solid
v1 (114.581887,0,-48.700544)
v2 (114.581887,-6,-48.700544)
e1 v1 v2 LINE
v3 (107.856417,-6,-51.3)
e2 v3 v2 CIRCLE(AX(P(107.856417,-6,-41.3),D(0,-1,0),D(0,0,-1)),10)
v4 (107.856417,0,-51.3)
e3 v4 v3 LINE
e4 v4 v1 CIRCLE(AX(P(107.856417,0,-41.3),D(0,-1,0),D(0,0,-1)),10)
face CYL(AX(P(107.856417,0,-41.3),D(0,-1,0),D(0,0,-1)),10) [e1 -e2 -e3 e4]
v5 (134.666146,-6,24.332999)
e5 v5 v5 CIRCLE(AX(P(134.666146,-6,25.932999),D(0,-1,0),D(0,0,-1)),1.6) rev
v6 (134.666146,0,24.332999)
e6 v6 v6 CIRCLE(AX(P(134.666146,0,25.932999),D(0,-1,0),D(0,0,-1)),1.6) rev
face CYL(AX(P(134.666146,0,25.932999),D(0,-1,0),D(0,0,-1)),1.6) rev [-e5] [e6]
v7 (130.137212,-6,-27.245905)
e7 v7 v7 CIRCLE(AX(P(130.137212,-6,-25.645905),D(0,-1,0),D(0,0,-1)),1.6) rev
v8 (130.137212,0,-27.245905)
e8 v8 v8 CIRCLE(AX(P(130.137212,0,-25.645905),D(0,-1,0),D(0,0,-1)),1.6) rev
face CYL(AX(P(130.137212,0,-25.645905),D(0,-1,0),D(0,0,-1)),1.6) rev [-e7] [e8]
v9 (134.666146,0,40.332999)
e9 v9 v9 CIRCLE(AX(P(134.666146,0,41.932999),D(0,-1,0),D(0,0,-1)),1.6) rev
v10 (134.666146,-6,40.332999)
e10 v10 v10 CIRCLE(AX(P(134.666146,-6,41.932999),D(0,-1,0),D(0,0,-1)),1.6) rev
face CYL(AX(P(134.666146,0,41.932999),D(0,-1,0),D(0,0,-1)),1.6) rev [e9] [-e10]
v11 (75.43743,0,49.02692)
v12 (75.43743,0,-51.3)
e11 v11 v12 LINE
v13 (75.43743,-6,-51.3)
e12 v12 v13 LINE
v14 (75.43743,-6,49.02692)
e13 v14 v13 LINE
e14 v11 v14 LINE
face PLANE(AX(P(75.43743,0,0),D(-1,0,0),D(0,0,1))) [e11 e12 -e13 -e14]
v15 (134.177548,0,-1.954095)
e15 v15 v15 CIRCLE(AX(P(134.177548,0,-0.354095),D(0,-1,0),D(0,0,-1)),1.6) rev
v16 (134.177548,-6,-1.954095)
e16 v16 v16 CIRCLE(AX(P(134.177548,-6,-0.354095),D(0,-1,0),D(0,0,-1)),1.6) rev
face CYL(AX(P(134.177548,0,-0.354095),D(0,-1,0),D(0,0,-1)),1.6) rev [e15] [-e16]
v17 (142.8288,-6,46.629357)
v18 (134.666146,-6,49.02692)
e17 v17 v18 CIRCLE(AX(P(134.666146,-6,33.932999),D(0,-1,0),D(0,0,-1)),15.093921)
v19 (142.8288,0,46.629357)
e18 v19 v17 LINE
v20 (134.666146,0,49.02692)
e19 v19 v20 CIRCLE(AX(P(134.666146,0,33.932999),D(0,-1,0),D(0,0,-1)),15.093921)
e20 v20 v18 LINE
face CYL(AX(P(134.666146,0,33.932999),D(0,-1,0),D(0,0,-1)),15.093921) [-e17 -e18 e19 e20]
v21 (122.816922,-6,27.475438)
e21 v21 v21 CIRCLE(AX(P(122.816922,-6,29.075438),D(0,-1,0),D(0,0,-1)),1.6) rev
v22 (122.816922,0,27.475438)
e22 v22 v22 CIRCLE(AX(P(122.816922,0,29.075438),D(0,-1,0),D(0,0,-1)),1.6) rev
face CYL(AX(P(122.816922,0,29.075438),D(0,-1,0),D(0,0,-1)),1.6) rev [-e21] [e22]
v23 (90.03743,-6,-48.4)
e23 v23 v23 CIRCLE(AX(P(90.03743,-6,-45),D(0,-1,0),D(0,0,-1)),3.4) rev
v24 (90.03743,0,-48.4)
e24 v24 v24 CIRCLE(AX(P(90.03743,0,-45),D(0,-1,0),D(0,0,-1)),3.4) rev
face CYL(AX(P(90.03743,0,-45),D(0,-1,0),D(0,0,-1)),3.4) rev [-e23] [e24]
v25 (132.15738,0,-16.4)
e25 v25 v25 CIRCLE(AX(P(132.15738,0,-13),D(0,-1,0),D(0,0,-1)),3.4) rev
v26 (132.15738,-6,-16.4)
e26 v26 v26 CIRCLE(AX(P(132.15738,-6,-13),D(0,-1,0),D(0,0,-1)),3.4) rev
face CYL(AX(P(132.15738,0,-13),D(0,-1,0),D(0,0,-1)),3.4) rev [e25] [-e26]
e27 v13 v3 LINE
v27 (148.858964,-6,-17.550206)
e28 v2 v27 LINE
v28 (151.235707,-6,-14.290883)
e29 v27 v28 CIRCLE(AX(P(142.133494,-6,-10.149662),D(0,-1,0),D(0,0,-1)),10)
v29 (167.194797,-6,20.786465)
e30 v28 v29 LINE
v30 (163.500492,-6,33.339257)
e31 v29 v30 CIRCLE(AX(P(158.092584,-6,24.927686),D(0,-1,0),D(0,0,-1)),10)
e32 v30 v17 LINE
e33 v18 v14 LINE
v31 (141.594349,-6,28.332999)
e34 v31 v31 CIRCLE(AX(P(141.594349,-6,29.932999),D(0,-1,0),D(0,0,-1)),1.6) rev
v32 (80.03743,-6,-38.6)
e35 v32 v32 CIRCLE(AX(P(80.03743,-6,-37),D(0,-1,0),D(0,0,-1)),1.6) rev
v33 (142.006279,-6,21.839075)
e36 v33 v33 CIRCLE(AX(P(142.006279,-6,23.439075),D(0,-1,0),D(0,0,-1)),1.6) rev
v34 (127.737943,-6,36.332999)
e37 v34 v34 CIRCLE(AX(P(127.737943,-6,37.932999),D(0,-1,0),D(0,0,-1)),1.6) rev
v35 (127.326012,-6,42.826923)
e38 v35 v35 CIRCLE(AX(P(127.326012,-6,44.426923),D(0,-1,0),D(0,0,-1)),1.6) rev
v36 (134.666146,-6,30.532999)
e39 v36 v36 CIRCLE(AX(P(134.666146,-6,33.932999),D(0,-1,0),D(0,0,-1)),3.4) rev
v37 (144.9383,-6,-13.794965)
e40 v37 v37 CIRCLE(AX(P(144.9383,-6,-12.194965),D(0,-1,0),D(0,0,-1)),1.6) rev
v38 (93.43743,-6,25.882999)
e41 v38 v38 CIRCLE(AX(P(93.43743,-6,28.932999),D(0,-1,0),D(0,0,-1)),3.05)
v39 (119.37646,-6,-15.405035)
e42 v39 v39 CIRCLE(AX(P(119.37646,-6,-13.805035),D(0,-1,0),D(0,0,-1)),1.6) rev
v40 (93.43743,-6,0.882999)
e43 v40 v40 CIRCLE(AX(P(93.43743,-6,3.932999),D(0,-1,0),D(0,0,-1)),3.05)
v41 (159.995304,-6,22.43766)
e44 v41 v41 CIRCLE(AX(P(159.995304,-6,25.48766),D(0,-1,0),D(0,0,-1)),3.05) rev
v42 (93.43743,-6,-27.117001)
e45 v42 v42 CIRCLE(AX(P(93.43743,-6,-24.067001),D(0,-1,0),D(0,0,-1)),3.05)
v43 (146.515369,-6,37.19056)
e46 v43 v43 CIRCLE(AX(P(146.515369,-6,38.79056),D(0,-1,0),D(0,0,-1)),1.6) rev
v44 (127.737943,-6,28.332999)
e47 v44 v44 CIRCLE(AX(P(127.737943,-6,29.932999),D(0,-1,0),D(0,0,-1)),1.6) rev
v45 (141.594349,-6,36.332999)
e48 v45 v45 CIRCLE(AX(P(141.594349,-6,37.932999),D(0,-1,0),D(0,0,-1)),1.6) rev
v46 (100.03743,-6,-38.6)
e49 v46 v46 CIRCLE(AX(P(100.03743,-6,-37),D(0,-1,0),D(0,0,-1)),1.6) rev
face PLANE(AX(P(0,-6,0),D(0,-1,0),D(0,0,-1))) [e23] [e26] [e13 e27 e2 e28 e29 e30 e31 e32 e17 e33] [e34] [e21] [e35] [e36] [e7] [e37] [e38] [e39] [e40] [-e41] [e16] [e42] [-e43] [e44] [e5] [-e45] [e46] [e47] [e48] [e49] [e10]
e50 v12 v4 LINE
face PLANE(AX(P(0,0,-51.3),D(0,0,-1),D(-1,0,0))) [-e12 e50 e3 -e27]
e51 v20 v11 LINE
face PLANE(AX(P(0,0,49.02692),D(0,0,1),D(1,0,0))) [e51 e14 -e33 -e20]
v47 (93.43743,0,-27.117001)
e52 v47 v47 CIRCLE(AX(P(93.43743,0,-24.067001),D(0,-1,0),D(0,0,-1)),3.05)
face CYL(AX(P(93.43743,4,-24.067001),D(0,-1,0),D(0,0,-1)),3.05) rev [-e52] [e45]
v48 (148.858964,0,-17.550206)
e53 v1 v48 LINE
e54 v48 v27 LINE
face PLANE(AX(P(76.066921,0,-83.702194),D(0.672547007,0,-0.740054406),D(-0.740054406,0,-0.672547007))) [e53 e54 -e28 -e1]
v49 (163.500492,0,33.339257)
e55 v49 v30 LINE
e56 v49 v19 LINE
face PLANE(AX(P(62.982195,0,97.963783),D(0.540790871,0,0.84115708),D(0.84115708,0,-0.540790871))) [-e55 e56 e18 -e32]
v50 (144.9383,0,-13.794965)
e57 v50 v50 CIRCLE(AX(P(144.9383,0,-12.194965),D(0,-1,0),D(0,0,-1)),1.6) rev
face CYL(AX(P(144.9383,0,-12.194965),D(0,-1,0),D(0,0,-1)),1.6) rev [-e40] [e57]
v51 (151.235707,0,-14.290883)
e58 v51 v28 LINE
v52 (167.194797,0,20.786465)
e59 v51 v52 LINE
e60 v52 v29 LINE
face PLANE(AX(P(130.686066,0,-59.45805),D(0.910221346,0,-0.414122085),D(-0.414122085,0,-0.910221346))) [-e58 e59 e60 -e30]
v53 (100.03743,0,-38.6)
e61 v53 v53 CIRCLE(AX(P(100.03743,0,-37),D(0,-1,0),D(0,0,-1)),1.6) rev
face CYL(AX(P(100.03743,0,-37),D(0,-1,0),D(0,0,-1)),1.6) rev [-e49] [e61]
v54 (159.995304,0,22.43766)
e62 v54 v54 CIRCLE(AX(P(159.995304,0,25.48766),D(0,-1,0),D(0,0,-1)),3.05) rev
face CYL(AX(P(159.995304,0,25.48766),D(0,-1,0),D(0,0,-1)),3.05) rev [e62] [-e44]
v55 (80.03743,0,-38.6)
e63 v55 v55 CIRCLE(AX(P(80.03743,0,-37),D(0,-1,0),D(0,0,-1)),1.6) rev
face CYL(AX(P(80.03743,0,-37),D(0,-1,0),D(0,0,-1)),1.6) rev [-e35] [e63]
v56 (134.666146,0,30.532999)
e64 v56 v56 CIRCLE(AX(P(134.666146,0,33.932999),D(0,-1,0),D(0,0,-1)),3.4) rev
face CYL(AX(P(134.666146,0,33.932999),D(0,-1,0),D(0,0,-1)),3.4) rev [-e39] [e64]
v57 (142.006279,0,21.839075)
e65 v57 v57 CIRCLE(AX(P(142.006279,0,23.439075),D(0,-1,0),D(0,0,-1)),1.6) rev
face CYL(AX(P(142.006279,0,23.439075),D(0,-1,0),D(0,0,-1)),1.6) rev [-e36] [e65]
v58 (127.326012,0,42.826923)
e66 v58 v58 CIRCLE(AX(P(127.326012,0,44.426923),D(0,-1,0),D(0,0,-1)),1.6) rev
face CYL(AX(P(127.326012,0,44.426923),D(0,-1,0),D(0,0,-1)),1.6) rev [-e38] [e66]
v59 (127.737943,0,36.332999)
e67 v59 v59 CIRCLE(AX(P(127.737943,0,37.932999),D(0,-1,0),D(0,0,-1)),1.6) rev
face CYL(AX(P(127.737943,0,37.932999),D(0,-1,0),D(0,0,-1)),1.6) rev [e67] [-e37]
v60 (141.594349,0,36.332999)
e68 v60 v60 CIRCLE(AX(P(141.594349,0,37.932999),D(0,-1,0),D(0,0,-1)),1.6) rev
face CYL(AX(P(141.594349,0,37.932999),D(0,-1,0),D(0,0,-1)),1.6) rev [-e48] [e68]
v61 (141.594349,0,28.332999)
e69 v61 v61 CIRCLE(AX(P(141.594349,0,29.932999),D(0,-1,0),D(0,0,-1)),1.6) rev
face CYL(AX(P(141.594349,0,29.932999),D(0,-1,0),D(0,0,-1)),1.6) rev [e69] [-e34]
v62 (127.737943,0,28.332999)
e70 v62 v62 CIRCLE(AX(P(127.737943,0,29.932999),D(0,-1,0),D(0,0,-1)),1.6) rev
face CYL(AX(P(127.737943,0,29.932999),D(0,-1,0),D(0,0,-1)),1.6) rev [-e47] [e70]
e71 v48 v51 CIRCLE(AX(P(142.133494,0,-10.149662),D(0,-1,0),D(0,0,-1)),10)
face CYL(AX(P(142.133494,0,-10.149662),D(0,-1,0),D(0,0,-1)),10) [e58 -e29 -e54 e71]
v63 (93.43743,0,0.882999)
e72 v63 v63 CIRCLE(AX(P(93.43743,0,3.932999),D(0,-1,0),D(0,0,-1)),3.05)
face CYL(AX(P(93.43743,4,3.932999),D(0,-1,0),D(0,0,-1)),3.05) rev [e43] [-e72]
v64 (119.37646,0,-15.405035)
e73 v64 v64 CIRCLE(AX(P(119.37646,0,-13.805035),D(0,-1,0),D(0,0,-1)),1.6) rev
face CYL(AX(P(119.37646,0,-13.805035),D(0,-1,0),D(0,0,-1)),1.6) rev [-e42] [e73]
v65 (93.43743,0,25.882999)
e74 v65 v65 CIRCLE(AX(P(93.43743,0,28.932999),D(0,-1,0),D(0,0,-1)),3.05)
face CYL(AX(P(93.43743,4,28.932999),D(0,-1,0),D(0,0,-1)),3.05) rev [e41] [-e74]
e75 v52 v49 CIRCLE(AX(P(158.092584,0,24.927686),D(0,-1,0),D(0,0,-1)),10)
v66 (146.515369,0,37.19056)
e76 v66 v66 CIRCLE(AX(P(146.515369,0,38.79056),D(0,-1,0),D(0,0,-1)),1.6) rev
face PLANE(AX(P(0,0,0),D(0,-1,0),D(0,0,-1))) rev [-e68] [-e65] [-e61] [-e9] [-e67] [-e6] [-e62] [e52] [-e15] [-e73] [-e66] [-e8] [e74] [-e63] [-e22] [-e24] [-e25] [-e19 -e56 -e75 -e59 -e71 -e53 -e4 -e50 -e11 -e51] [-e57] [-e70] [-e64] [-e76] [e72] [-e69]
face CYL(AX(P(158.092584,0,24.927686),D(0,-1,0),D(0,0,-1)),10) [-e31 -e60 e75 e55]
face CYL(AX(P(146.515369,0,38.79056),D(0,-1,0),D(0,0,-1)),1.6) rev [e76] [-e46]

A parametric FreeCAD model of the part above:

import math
import FreeCAD as App
import Part
import Sketcher
from FreeCAD import Vector

doc = App.newDocument("Part")
body = doc.addObject("PartDesign::Body", "Body")

sketch1 = doc.addObject("Sketcher::SketchObject", "Sketch")
body.addObject(sketch1)
sketch1.AttachmentSupport = (doc.XZ_Plane, [""])
sketch1.MapMode = "FlatFace"
sketch1.AttachmentOffset = App.Placement(Vector(0, 0, 6), App.Rotation())
sketch1.addGeometry(Part.ArcOfCircle(Part.Circle(Vector(142.1, -10.1, 0), Vector(0, 0, 1), 10), math.radians(-48), math.radians(-24)), False)
sketch1.addGeometry(Part.LineSegment(Vector(151.2, -14.3, 0), Vector(167.2, 20.8, 0)), False)
sketch1.addGeometry(Part.ArcOfCircle(Part.Circle(Vector(158.1, 24.9, 0), Vector(0, 0, 1), 10), math.radians(-24), math.radians(57)), False)
sketch1.addGeometry(Part.LineSegment(Vector(163.5, 33.3, 0), Vector(142.8, 46.6, 0)), False)
sketch1.addGeometry(Part.ArcOfCircle(Part.Circle(Vector(134.7, 33.9, 0), Vector(0, 0, 1), 15.1), math.radians(57), math.radians(90)), False)
sketch1.addGeometry(Part.LineSegment(Vector(134.7, 49, 0), Vector(75.4, 49, 0)), False)
sketch1.addGeometry(Part.LineSegment(Vector(75.4, 49, 0), Vector(75.4, -51.3, 0)), False)
sketch1.addGeometry(Part.LineSegment(Vector(75.4, -51.3, 0), Vector(107.9, -51.3, 0)), False)
sketch1.addGeometry(Part.ArcOfCircle(Part.Circle(Vector(107.9, -41.3, 0), Vector(0, 0, 1), 10), math.radians(-90), math.radians(-48)), False)
sketch1.addGeometry(Part.LineSegment(Vector(114.6, -48.7, 0), Vector(148.9, -17.6, 0)), False)
sketch1.addGeometry(Part.Circle(Vector(80, -37, 0), Vector(0, 0, 1), 1.6), False)
sketch1.addGeometry(Part.Circle(Vector(90, -45, 0), Vector(0, 0, 1), 3.4), False)
sketch1.addGeometry(Part.Circle(Vector(100, -37, 0), Vector(0, 0, 1), 1.6), False)
sketch1.addGeometry(Part.Circle(Vector(119.4, -13.8, 0), Vector(0, 0, 1), 1.6), False)
sketch1.addGeometry(Part.Circle(Vector(130.1, -25.6, 0), Vector(0, 0, 1), 1.6), False)
sketch1.addGeometry(Part.Circle(Vector(132.2, -13, 0), Vector(0, 0, 1), 3.4), False)
sketch1.addGeometry(Part.Circle(Vector(144.9, -12.2, 0), Vector(0, 0, 1), 1.6), False)
sketch1.addGeometry(Part.Circle(Vector(134.2, -0.4, 0), Vector(0, 0, 1), 1.6), False)
sketch1.addGeometry(Part.Circle(Vector(122.8, 29.1, 0), Vector(0, 0, 1), 1.6), False)
sketch1.addGeometry(Part.Circle(Vector(127.7, 29.9, 0), Vector(0, 0, 1), 1.6), False)
sketch1.addGeometry(Part.Circle(Vector(134.7, 25.9, 0), Vector(0, 0, 1), 1.6), False)
sketch1.addGeometry(Part.Circle(Vector(134.7, 33.9, 0), Vector(0, 0, 1), 3.4), False)
sketch1.addGeometry(Part.Circle(Vector(141.6, 29.9, 0), Vector(0, 0, 1), 1.6), False)
sketch1.addGeometry(Part.Circle(Vector(127.7, 37.9, 0), Vector(0, 0, 1), 1.6), False)
sketch1.addGeometry(Part.Circle(Vector(127.3, 44.4, 0), Vector(0, 0, 1), 1.6), False)
sketch1.addGeometry(Part.Circle(Vector(141.6, 37.9, 0), Vector(0, 0, 1), 1.6), False)
sketch1.addGeometry(Part.Circle(Vector(134.7, 41.9, 0), Vector(0, 0, 1), 1.6), False)
sketch1.addGeometry(Part.Circle(Vector(142, 23.4, 0), Vector(0, 0, 1), 1.6), False)
sketch1.addGeometry(Part.Circle(Vector(160, 25.5, 0), Vector(0, 0, 1), 3), False)
sketch1.addGeometry(Part.Circle(Vector(146.5, 38.8, 0), Vector(0, 0, 1), 1.6), False)
sketch1.addConstraint(Sketcher.Constraint("Tangent", 0, 2, 1, 1))
sketch1.addConstraint(Sketcher.Constraint("Tangent", 1, 2, 2, 1))
sketch1.addConstraint(Sketcher.Constraint("Tangent", 2, 2, 3, 1))
sketch1.addConstraint(Sketcher.Constraint("Tangent", 3, 2, 4, 1))
sketch1.addConstraint(Sketcher.Constraint("Tangent", 4, 2, 5, 1))
sketch1.addConstraint(Sketcher.Constraint("Coincident", 5, 2, 6, 1))
sketch1.addConstraint(Sketcher.Constraint("Coincident", 6, 2, 7, 1))
sketch1.addConstraint(Sketcher.Constraint("Tangent", 7, 2, 8, 1))
sketch1.addConstraint(Sketcher.Constraint("Tangent", 8, 2, 9, 1))
sketch1.addConstraint(Sketcher.Constraint("Tangent", 9, 2, 0, 1))
sketch1.addConstraint(Sketcher.Constraint("Horizontal", 5))
sketch1.addConstraint(Sketcher.Constraint("Vertical", 6))
sketch1.addConstraint(Sketcher.Constraint("Horizontal", 7))
sketch1.addConstraint(Sketcher.Constraint("Coincident", 21, 3, 4, 3))
sketch1.addConstraint(Sketcher.Constraint("Equal", 0, 2))
sketch1.addConstraint(Sketcher.Constraint("Equal", 2, 8))
sketch1.addConstraint(Sketcher.Constraint("Equal", 10, 12))
sketch1.addConstraint(Sketcher.Constraint("Equal", 12, 13))
sketch1.addConstraint(Sketcher.Constraint("Equal", 13, 14))
sketch1.addConstraint(Sketcher.Constraint("Equal", 11, 15))
sketch1.addConstraint(Sketcher.Constraint("Equal", 14, 16))
sketch1.addConstraint(Sketcher.Constraint("Equal", 16, 17))
sketch1.addConstraint(Sketcher.Constraint("Equal", 17, 18))
sketch1.addConstraint(Sketcher.Constraint("Equal", 18, 19))
sketch1.addConstraint(Sketcher.Constraint("Equal", 19, 20))
sketch1.addConstraint(Sketcher.Constraint("Equal", 15, 21))
sketch1.addConstraint(Sketcher.Constraint("Equal", 20, 22))
sketch1.addConstraint(Sketcher.Constraint("Equal", 22, 23))
sketch1.addConstraint(Sketcher.Constraint("Equal", 23, 24))
sketch1.addConstraint(Sketcher.Constraint("Equal", 24, 25))
sketch1.addConstraint(Sketcher.Constraint("Equal", 25, 26))
sketch1.addConstraint(Sketcher.Constraint("Equal", 26, 27))
sketch1.addConstraint(Sketcher.Constraint("Equal", 27, 29))
sketch1.addConstraint(Sketcher.Constraint("Horizontal", 10, 3, 12, 3))
sketch1.addConstraint(Sketcher.Constraint("Horizontal", 19, 3, 22, 3))
sketch1.addConstraint(Sketcher.Constraint("Horizontal", 23, 3, 25, 3))
sketch1.addConstraint(Sketcher.Constraint("Vertical", 4, 3, 20, 3))
sketch1.addConstraint(Sketcher.Constraint("Vertical", 19, 3, 23, 3))
sketch1.addConstraint(Sketcher.Constraint("Vertical", 22, 3, 25, 3))
sketch1.addConstraint(Sketcher.Constraint("Vertical", 21, 3, 26, 3))
sketch1.addConstraint(Sketcher.Constraint("Radius", 0, 10.0))
sketch1.addConstraint(Sketcher.Constraint("Diameter", 10, 3.2))
sketch1.addConstraint(Sketcher.Constraint("Diameter", 11, 6.8))
sketch1.addConstraint(Sketcher.Constraint("Diameter", 28, 6.1))
sketch1.addConstraint(Sketcher.Constraint("DistanceY", 10, 3, -1, 1, 37.0))
sketch1.addConstraint(Sketcher.Constraint("DistanceY", 11, 3, -1, 1, 45.0))
sketch1.addConstraint(Sketcher.Constraint("DistanceY", 15, 3, -1, 1, 13.0))
sketch1.addConstraint(Sketcher.Constraint("DistanceX", 10, 3, 11, 3, 10.0))
sketch1.addConstraint(Sketcher.Constraint("DistanceX", 11, 3, 12, 3, 10.0))
sketch1.addConstraint(Sketcher.Constraint("DistanceY", 19, 3, 4, 3, 4.0))
sketch1.addConstraint(Sketcher.Constraint("DistanceY", 20, 3, 19, 3, 4.0))
sketch1.addConstraint(Sketcher.Constraint("DistanceY", 21, 3, 23, 3, 4.0))
sketch1.addConstraint(Sketcher.Constraint("DistanceY", 23, 3, 26, 3, 4.0))
sketch1.addConstraint(Sketcher.Constraint("DistanceY", 8, 3, -1, 1, 41.3))
sketch1.addConstraint(Sketcher.Constraint("DistanceX", 6, 2, 10, 3, 4.6))
sketch1.addConstraint(Sketcher.Constraint("Radius", 4, 15.093921))
sketch1.addConstraint(Sketcher.Constraint("DistanceY", -1, 1, 4, 3, 33.932999))
sketch1.addConstraint(Sketcher.Constraint("DistanceX", -1, 1, 16, 3, 144.9383))
sketch1.addConstraint(Sketcher.Constraint("DistanceX", -1, 1, 3, 2, 142.8288))
sketch1.addConstraint(Sketcher.Constraint("DistanceY", 14, 3, 9, 2, 8.0957))
sketch1.addConstraint(Sketcher.Constraint("Distance", 9, 46.316968))
sketch1.addConstraint(Sketcher.Constraint("DistanceX", 5, 2, 5, 1, 59.228716))
sketch1.addConstraint(Sketcher.Constraint("DistanceX", 7, 1, 7, 2, 32.418987))
sketch1.addConstraint(Sketcher.Constraint("DistanceY", 0, 3, -1, 1, 10.149662))
sketch1.addConstraint(Sketcher.Constraint("DistanceX", -1, 1, 10, 3, 80.03743))
sketch1.addConstraint(Sketcher.Constraint("DistanceX", -1, 1, 13, 3, 119.37646))
sketch1.addConstraint(Sketcher.Constraint("DistanceX", -1, 1, 14, 3, 130.137212))
sketch1.addConstraint(Sketcher.Constraint("DistanceX", -1, 1, 15, 3, 132.15738))
sketch1.addConstraint(Sketcher.Constraint("DistanceX", -1, 1, 22, 3, 141.594349))
sketch1.addConstraint(Sketcher.Constraint("DistanceX", -1, 1, 27, 3, 142.006279))
sketch1.addConstraint(Sketcher.Constraint("DistanceY", -1, 1, 28, 3, 25.48766))
sketch1.addConstraint(Sketcher.Constraint("DistanceX", -1, 1, 29, 3, 146.515369))
sketch1.addConstraint(Sketcher.Constraint("DistanceY", -1, 1, 29, 3, 38.79056))
sketch1.addConstraint(Sketcher.Constraint("DistanceX", 0, 3, 2, 3, 15.95909))
sketch1.addConstraint(Sketcher.Constraint("DistanceY", 14, 3, 13, 3, 11.84087))
sketch1.addConstraint(Sketcher.Constraint("DistanceY", 14, 3, 16, 3, 13.45094))
sketch1.addConstraint(Sketcher.Constraint("DistanceX", 15, 3, 17, 3, 2.020168))
sketch1.addConstraint(Sketcher.Constraint("DistanceY", 16, 3, 17, 3, 11.84087))
sketch1.addConstraint(Sketcher.Constraint("DistanceY", 18, 3, 4, 3, 4.857561))
sketch1.addConstraint(Sketcher.Constraint("DistanceX", 18, 3, 2, 3, 35.275661))
sketch1.addConstraint(Sketcher.Constraint("DistanceX", 18, 3, 19, 3, 4.92102))
sketch1.addConstraint(Sketcher.Constraint("DistanceX", 24, 3, 23, 3, 0.41193))
sketch1.addConstraint(Sketcher.Constraint("DistanceX", 2, 3, 28, 3, 1.90272))
sketch1.addConstraint(Sketcher.Constraint("DistanceY", 1, 2, 27, 3, 2.65261))
sketch1.addConstraint(Sketcher.Constraint("DistanceY", -1, 1, 24, 3, 44.426923))
pad1 = doc.addObject("PartDesign::Pad", "Pad")
body.addObject(pad1)
pad1.Profile = sketch1
pad1.Length = 6
pad1.Reversed = True

sketch2 = doc.addObject("Sketcher::SketchObject", "Sketch001")
body.addObject(sketch2)
sketch2.AttachmentSupport = (doc.XZ_Plane, [""])
sketch2.MapMode = "FlatFace"
sketch2.AttachmentOffset = App.Placement(Vector(0, 0, 6), App.Rotation())
sketch2.addGeometry(Part.Circle(Vector(93.4, -24.1, 0), Vector(0, 0, 1), 3), False)
sketch2.addGeometry(Part.Circle(Vector(93.4, 3.9, 0), Vector(0, 0, 1), 3), False)
sketch2.addGeometry(Part.Circle(Vector(93.4, 28.9, 0), Vector(0, 0, 1), 3), False)
sketch2.addConstraint(Sketcher.Constraint("Equal", 0, 1))
sketch2.addConstraint(Sketcher.Constraint("Equal", 1, 2))
sketch2.addConstraint(Sketcher.Constraint("Vertical", 0, 3, 1, 3))
sketch2.addConstraint(Sketcher.Constraint("Vertical", 1, 3, 2, 3))
sketch2.addConstraint(Sketcher.Constraint("Diameter", 0, 6.1))
sketch2.addConstraint(Sketcher.Constraint("DistanceY", 0, 3, 1, 3, 28.0))
sketch2.addConstraint(Sketcher.Constraint("DistanceY", 1, 3, 2, 3, 25.0))
sketch2.addConstraint(Sketcher.Constraint("DistanceY", 0, 3, -1, 1, 24.067001))
sketch2.addConstraint(Sketcher.Constraint("DistanceX", -1, 1, 0, 3, 93.43743))
pocket1 = doc.addObject("PartDesign::Pocket", "Pocket")
body.addObject(pocket1)
pocket1.Profile = sketch2
pocket1.Length = 10

doc.recompute()
